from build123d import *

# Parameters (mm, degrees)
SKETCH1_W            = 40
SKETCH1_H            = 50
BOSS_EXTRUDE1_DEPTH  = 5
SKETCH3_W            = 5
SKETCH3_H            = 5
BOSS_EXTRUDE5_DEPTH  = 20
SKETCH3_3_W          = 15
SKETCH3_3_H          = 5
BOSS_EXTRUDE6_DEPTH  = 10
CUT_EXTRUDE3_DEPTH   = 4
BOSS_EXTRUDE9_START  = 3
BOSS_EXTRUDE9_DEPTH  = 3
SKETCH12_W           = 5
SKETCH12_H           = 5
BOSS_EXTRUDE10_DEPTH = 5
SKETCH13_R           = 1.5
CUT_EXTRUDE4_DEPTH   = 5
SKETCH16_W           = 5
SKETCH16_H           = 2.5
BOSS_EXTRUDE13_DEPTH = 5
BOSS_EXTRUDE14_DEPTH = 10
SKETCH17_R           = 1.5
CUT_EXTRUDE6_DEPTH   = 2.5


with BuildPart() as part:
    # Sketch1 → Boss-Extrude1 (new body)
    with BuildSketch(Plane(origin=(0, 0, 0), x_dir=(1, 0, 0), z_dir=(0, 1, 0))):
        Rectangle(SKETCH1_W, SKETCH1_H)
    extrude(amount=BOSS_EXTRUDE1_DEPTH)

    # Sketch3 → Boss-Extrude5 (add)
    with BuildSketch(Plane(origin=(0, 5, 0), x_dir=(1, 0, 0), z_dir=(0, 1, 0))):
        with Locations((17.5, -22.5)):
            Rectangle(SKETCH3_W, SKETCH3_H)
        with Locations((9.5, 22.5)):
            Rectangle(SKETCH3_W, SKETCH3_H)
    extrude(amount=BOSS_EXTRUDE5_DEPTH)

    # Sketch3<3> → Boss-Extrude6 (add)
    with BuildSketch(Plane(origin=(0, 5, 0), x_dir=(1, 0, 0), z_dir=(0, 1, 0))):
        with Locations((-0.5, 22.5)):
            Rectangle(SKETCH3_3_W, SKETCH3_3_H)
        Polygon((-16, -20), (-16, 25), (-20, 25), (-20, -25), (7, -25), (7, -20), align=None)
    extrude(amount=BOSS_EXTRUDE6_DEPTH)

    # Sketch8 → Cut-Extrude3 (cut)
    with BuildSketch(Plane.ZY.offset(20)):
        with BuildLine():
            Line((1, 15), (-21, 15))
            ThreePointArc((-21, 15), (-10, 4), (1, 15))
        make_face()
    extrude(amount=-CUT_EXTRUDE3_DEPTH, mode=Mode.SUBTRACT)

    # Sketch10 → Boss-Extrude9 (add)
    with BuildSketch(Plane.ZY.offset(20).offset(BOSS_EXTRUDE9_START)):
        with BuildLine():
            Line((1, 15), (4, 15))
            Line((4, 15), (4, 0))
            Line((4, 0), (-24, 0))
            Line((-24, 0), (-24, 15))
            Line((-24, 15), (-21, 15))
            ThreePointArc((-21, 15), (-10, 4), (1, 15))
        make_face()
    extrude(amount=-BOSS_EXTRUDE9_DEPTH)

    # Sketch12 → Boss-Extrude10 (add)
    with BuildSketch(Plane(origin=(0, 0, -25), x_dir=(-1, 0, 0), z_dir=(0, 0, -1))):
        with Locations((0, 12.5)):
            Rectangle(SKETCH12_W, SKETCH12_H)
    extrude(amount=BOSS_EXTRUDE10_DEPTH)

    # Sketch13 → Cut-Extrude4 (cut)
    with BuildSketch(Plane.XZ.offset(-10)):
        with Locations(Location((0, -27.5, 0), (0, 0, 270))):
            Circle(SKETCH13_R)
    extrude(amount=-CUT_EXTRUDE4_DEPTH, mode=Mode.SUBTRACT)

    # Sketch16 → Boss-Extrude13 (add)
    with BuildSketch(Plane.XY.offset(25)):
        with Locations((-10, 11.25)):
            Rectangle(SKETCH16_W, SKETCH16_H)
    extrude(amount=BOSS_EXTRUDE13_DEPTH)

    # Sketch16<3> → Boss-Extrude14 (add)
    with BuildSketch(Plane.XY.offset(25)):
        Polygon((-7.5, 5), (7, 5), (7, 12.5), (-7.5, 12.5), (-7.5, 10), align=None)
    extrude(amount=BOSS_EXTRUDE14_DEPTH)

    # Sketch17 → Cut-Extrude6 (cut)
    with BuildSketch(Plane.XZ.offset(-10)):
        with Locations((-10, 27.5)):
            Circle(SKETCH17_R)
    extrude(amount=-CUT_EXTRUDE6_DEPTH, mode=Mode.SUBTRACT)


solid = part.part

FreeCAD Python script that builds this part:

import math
import FreeCAD as App
import Part
import Sketcher

V = App.Vector
Q = App.Units.Quantity

doc = App.newDocument("Part")
params = doc.addObject("Spreadsheet::Sheet", "Params")
for row, (alias, value) in enumerate([
    ("sketch1_width", "40 mm"),
    ("sketch1_height", "50 mm"),
    ("pad1_length", "5 mm"),
    ("sketch2_width", "5 mm"),
    ("pad2_length", "20 mm"),
    ("sketch3_width", "15 mm"),
    ("sketch3_width2", "4 mm"),
    ("sketch3_width3", "27 mm"),
    ("sketch3_height", "5 mm"),
    ("sketch3_height2", "45 mm"),
    ("pad3_length", "10 mm"),
    ("sketch4_radius", "11 mm"),
    ("pocket1_length", "4 mm"),
    ("sketch5_radius", "11 mm"),
    ("sketch5_width", "15 mm"),
    ("sketch5_height", "3 mm"),
    ("pad4_length", "3 mm"),
    ("sketch6_width", "5 mm"),
    ("pad5_length", "5 mm"),
    ("sketch7_diameter", "3 mm"),
    ("pocket2_length", "5 mm"),
    ("sketch8_width", "5 mm"),
    ("sketch8_height", "2.5 mm"),
    ("pad6_length", "5 mm"),
    ("sketch9_width", "14.5 mm"),
    ("sketch9_height", "7.5 mm"),
    ("pad7_length", "10 mm"),
    ("sketch10_diameter", "3 mm"),
    ("pocket3_length", "2.5 mm"),
], start=1):
    params.set(f"A{row}", alias)
    params.set(f"B{row}", "=" + value)
    params.setAlias(f"B{row}", alias)

body = doc.addObject("PartDesign::Body", "Body")

# Sketch on XZ plane
sketch1 = body.newObject("Sketcher::SketchObject", "Sketch")
sketch1.AttachmentSupport = (doc.getObject("XZ_Plane"), [""])
sketch1.MapMode = "FlatFace"
sketch1.addGeometry([
    Part.LineSegment(V(-20, -25, 0), V(-20, 25, 0)),
    Part.LineSegment(V(-20, 25, 0), V(20, 25, 0)),
    Part.LineSegment(V(20, 25, 0), V(20, -25, 0)),
    Part.LineSegment(V(20, -25, 0), V(-20, -25, 0)),
], False)
sketch1.addConstraint([
    Sketcher.Constraint("Coincident", 0, 2, 1, 1),
    Sketcher.Constraint("Coincident", 1, 2, 2, 1),
    Sketcher.Constraint("Coincident", 2, 2, 3, 1),
    Sketcher.Constraint("Coincident", 3, 2, 0, 1),
    Sketcher.Constraint("Vertical", 0),
    Sketcher.Constraint("Horizontal", 1),
    Sketcher.Constraint("Vertical", 2),
    Sketcher.Constraint("Horizontal", 3),
    Sketcher.Constraint("Symmetric", 0, 2, 2, 2, -1, 1),
    Sketcher.Constraint("DistanceX", 1, 1, 1, 2, Q("40 mm")),
    Sketcher.Constraint("DistanceY", 0, 1, 0, 2, Q("50 mm")),
])
sketch1.setExpression("Constraints[9]", "Params.sketch1_width")
sketch1.setExpression("Constraints[10]", "Params.sketch1_height")
pad1 = body.newObject("PartDesign::Pad", "Pad")
pad1.Profile = sketch1
pad1.setExpression("Length", "Params.pad1_length")
pad1.Reversed = True

# Sketch on XZ plane
sketch2 = body.newObject("Sketcher::SketchObject", "Sketch001")
sketch2.AttachmentSupport = (doc.getObject("XZ_Plane"), [""])
sketch2.MapMode = "FlatFace"
sketch2.AttachmentOffset = App.Placement(V(0, 0, -5), App.Rotation())
sketch2.addGeometry([
    Part.LineSegment(V(15, 20, 0), V(15, 25, 0)),  # 0
    Part.LineSegment(V(15, 25, 0), V(20, 25, 0)),  # 1
    Part.LineSegment(V(20, 25, 0), V(20, 20, 0)),  # 2
    Part.LineSegment(V(20, 20, 0), V(15, 20, 0)),  # 3
    Part.LineSegment(V(7, -25, 0), V(7, -20, 0)),  # 4
    Part.LineSegment(V(7, -20, 0), V(12, -20, 0)),  # 5
    Part.LineSegment(V(12, -20, 0), V(12, -25, 0)),  # 6
    Part.LineSegment(V(12, -25, 0), V(7, -25, 0)),  # 7
], False)
sketch2.addConstraint([
    Sketcher.Constraint("Coincident", 0, 2, 1, 1),
    Sketcher.Constraint("Coincident", 1, 2, 2, 1),
    Sketcher.Constraint("Coincident", 2, 2, 3, 1),
    Sketcher.Constraint("Coincident", 3, 2, 0, 1),
    Sketcher.Constraint("Coincident", 4, 2, 5, 1),
    Sketcher.Constraint("Coincident", 5, 2, 6, 1),
    Sketcher.Constraint("Coincident", 6, 2, 7, 1),
    Sketcher.Constraint("Coincident", 7, 2, 4, 1),
    Sketcher.Constraint("Vertical", 0),
    Sketcher.Constraint("Horizontal", 1),
    Sketcher.Constraint("Vertical", 2),
    Sketcher.Constraint("Horizontal", 3),
    Sketcher.Constraint("Vertical", 4),
    Sketcher.Constraint("Horizontal", 5),
    Sketcher.Constraint("Vertical", 6),
    Sketcher.Constraint("Horizontal", 7),
    Sketcher.Constraint("Equal", 3, 5),
    Sketcher.Constraint("Equal", 7, 0),
    Sketcher.Constraint("Equal", 2, 4),
    Sketcher.Constraint("DistanceX", 1, 1, 1, 2, Q("5 mm")),
    Sketcher.Constraint("DistanceX", -1, 1, 0, 2, Q("15 mm")),
    Sketcher.Constraint("DistanceY", -1, 1, 0, 2, Q("25 mm")),
    Sketcher.Constraint("DistanceX", -1, 1, 4, 2, Q("7 mm")),
    Sketcher.Constraint("DistanceY", 4, 2, -1, 1, Q("20 mm")),
])
sketch2.setExpression("Constraints[19]", "Params.sketch2_width")
pad2 = body.newObject("PartDesign::Pad", "Pad001")
pad2.Profile = sketch2
pad2.setExpression("Length", "Params.pad2_length")
pad2.Reversed = True

# Sketch on XZ plane
sketch3 = body.newObject("Sketcher::SketchObject", "Sketch002")
sketch3.AttachmentSupport = (doc.getObject("XZ_Plane"), [""])
sketch3.MapMode = "FlatFace"
sketch3.AttachmentOffset = App.Placement(V(0, 0, -5), App.Rotation())
sketch3.addGeometry([
    Part.LineSegment(V(-8, -25, 0), V(-8, -20, 0)),  # 0
    Part.LineSegment(V(-8, -20, 0), V(7, -20, 0)),  # 1
    Part.LineSegment(V(7, -20, 0), V(7, -25, 0)),  # 2
    Part.LineSegment(V(7, -25, 0), V(-8, -25, 0)),  # 3
    Part.LineSegment(V(-16, 20, 0), V(-16, -25, 0)),  # 4
    Part.LineSegment(V(-16, -25, 0), V(-20, -25, 0)),  # 5
    Part.LineSegment(V(-20, -25, 0), V(-20, 25, 0)),  # 6
    Part.LineSegment(V(-20, 25, 0), V(7, 25, 0)),  # 7
    Part.LineSegment(V(7, 25, 0), V(7, 20, 0)),  # 8
    Part.LineSegment(V(7, 20, 0), V(-16, 20, 0)),  # 9
], False)
sketch3.addConstraint([
    Sketcher.Constraint("Coincident", 0, 2, 1, 1),
    Sketcher.Constraint("Coincident", 1, 2, 2, 1),
    Sketcher.Constraint("Coincident", 2, 2, 3, 1),
    Sketcher.Constraint("Coincident", 3, 2, 0, 1),
    Sketcher.Constraint("Coincident", 4, 2, 5, 1),
    Sketcher.Constraint("Coincident", 5, 2, 6, 1),
    Sketcher.Constraint("Coincident", 6, 2, 7, 1),
    Sketcher.Constraint("Coincident", 7, 2, 8, 1),
    Sketcher.Constraint("Coincident", 8, 2, 9, 1),
    Sketcher.Constraint("Coincident", 9, 2, 4, 1),
    Sketcher.Constraint("Vertical", 0),
    Sketcher.Constraint("Horizontal", 1),
    Sketcher.Constraint("Vertical", 2),
    Sketcher.Constraint("Horizontal", 3),
    Sketcher.Constraint("Vertical", 4),
    Sketcher.Constraint("Horizontal", 5),
    Sketcher.Constraint("Vertical", 6),
    Sketcher.Constraint("Horizontal", 7),
    Sketcher.Constraint("Vertical", 8),
    Sketcher.Constraint("Horizontal", 9),
    Sketcher.Constraint("Symmetric", 2, 2, 7, 2, -1),
    Sketcher.Constraint("Horizontal", 3, 2, 4, 2),
    Sketcher.Constraint("Equal", 2, 8),
    Sketcher.Constraint("DistanceX", 1, 1, 1, 2, Q("15 mm")),
    Sketcher.Constraint("DistanceX", 5, 2, 5, 1, Q("4 mm")),
    Sketcher.Constraint("DistanceX", 7, 1, 7, 2, Q("27 mm")),
    Sketcher.Constraint("DistanceY", 0, 1, 0, 2, Q("5 mm")),
    Sketcher.Constraint("DistanceY", 4, 2, 4, 1, Q("45 mm")),
    Sketcher.Constraint("DistanceX", 0, 2, -1, 1, Q("8 mm")),
])
sketch3.setExpression("Constraints[23]", "Params.sketch3_width")
sketch3.setExpression("Constraints[24]", "Params.sketch3_width2")
sketch3.setExpression("Constraints[25]", "Params.sketch3_width3")
sketch3.setExpression("Constraints[26]", "Params.sketch3_height")
sketch3.setExpression("Constraints[27]", "Params.sketch3_height2")
pad3 = body.newObject("PartDesign::Pad", "Pad002")
pad3.Profile = sketch3
pad3.setExpression("Length", "Params.pad3_length")
pad3.Reversed = True

# Sketch on YZ plane
sketch4 = body.newObject("Sketcher::SketchObject", "Sketch003")
sketch4.AttachmentSupport = (doc.getObject("YZ_Plane"), [""])
sketch4.MapMode = "FlatFace"
sketch4.AttachmentOffset = App.Placement(V(0, 0, -20), App.Rotation())
sketch4.addGeometry([
    Part.LineSegment(V(15, 1, 0), V(15, -21, 0)),
    Part.ArcOfCircle(Part.Circle(V(15, -10, 0), V(0, 0, 1), 11), math.radians(90), math.radians(270)),
], False)
sketch4.addConstraint([
    Sketcher.Constraint("Coincident", 0, 1, 1, 1),
    Sketcher.Constraint("Coincident", 1, 2, 0, 2),
    Sketcher.Constraint("Vertical", 0),
    Sketcher.Constraint("Vertical", 1, 3, 0, 1),
    Sketcher.Constraint("Radius", 1, Q("11 mm")),
    Sketcher.Constraint("DistanceX", -1, 1, 1, 3, Q("15 mm")),
    Sketcher.Constraint("DistanceY", 1, 3, -1, 1, Q("10 mm")),
])
sketch4.setExpression("Constraints[4]", "Params.sketch4_radius")
pocket1 = body.newObject("PartDesign::Pocket", "Pocket")
pocket1.Profile = sketch4
pocket1.setExpression("Length", "Params.pocket1_length")
pocket1.Reversed = True

# Sketch on YZ plane
sketch5 = body.newObject("Sketcher::SketchObject", "Sketch004")
sketch5.AttachmentSupport = (doc.getObject("YZ_Plane"), [""])
sketch5.MapMode = "FlatFace"
sketch5.AttachmentOffset = App.Placement(V(0, 0, -23), App.Rotation())
sketch5.addGeometry([
    Part.LineSegment(V(15, 4, 0), V(15, 1, 0)),  # 0
    Part.ArcOfCircle(Part.Circle(V(15, -10, 0), V(0, 0, 1), 11), math.radians(90), math.radians(270)),  # 1
    Part.LineSegment(V(15, -21, 0), V(15, -24, 0)),  # 2
    Part.LineSegment(V(15, -24, 0), V(0, -24, 0)),  # 3
    Part.LineSegment(V(0, -24, 0), V(0, 4, 0)),  # 4
    Part.LineSegment(V(0, 4, 0), V(15, 4, 0)),  # 5
], False)
sketch5.addConstraint([
    Sketcher.Constraint("Coincident", 0, 2, 1, 1),
    Sketcher.Constraint("Coincident", 1, 2, 2, 1),
    Sketcher.Constraint("Coincident", 2, 2, 3, 1),
    Sketcher.Constraint("Coincident", 3, 2, 4, 1),
    Sketcher.Constraint("Coincident", 4, 2, 5, 1),
    Sketcher.Constraint("Coincident", 5, 2, 0, 1),
    Sketcher.Constraint("Vertical", 0),
    Sketcher.Constraint("Vertical", 2),
    Sketcher.Constraint("Horizontal", 3),
    Sketcher.Constraint("Vertical", 4),
    Sketcher.Constraint("Horizontal", 5),
    Sketcher.Constraint("PointOnObject", 3, 2, -2),
    Sketcher.Constraint("Vertical", 1, 3, 0, 2),
    Sketcher.Constraint("Vertical", 0, 2, 1, 2),
    Sketcher.Constraint("Equal", 0, 2),
    Sketcher.Constraint("Radius", 1, Q("11 mm")),
    Sketcher.Constraint("DistanceX", 3, 2, 3, 1, Q("15 mm")),
    Sketcher.Constraint("DistanceY", 0, 2, 0, 1, Q("3 mm")),
    Sketcher.Constraint("DistanceY", 1, 3, -1, 1, Q("10 mm")),
])
sketch5.setExpression("Constraints[15]", "Params.sketch5_radius")
sketch5.setExpression("Constraints[16]", "Params.sketch5_width")
sketch5.setExpression("Constraints[17]", "Params.sketch5_height")
pad4 = body.newObject("PartDesign::Pad", "Pad003")
pad4.Profile = sketch5
pad4.setExpression("Length", "Params.pad4_length")

# Sketch on XY plane
sketch6 = body.newObject("Sketcher::SketchObject", "Sketch005")
sketch6.AttachmentSupport = (doc.getObject("XY_Plane"), [""])
sketch6.MapMode = "FlatFace"
sketch6.AttachmentOffset = App.Placement(V(0, 0, -25), App.Rotation())
sketch6.addGeometry([
    Part.LineSegment(V(2, 15, 0), V(2, 10, 0)),
    Part.LineSegment(V(2, 10, 0), V(-2, 10, 0)),
    Part.LineSegment(V(-2, 10, 0), V(-2, 15, 0)),
    Part.LineSegment(V(-2, 15, 0), V(2, 15, 0)),
], False)
sketch6.addConstraint([
    Sketcher.Constraint("Coincident", 0, 2, 1, 1),
    Sketcher.Constraint("Coincident", 1, 2, 2, 1),
    Sketcher.Constraint("Coincident", 2, 2, 3, 1),
    Sketcher.Constraint("Coincident", 3, 2, 0, 1),
    Sketcher.Constraint("Vertical", 0),
    Sketcher.Constraint("Horizontal", 1),
    Sketcher.Constraint("Vertical", 2),
    Sketcher.Constraint("Horizontal", 3),
    Sketcher.Constraint("Equal", 3, 0),
    Sketcher.Constraint("DistanceX", 1, 2, 1, 1, Q("5 mm")),
    Sketcher.Constraint("DistanceY", -1, 1, 0, 2, Q("10 mm")),
    Sketcher.Constraint("DistanceX", -1, 1, 0, 2, Q("2.5 mm")),
])
sketch6.setExpression("Constraints[9]", "Params.sketch6_width")
pad5 = body.newObject("PartDesign::Pad", "Pad004")
pad5.Profile = sketch6
pad5.setExpression("Length", "Params.pad5_length")
pad5.Reversed = True

# Sketch on XZ plane
sketch7 = body.newObject("Sketcher::SketchObject", "Sketch006")
sketch7.AttachmentSupport = (doc.getObject("XZ_Plane"), [""])
sketch7.MapMode = "FlatFace"
sketch7.AttachmentOffset = App.Placement(V(0, 0, -10), App.Rotation())
sketch7.addGeometry(Part.Circle(V(0, -27.5, 0), V(0, 0, 1), 1.5), False)
sketch7.addConstraint([
    Sketcher.Constraint("PointOnObject", 0, 3, -2),
    Sketcher.Constraint("Diameter", 0, Q("3 mm")),
    Sketcher.Constraint("DistanceY", 0, 3, -1, 1, Q("27.5 mm")),
])
sketch7.setExpression("Constraints[1]", "Params.sketch7_diameter")
pocket2 = body.newObject("PartDesign::Pocket", "Pocket001")
pocket2.Profile = sketch7
pocket2.setExpression("Length", "Params.pocket2_length")

# Sketch on XY plane
sketch8 = body.newObject("Sketcher::SketchObject", "Sketch007")
sketch8.AttachmentSupport = (doc.getObject("XY_Plane"), [""])
sketch8.MapMode = "FlatFace"
sketch8.AttachmentOffset = App.Placement(V(0, 0, 25), App.Rotation())
sketch8.addGeometry([
    Part.LineSegment(V(-12.5, 12.5, 0), V(-12.5, 10, 0)),
    Part.LineSegment(V(-12.5, 10, 0), V(-7.5, 10, 0)),
    Part.LineSegment(V(-7.5, 10, 0), V(-7.5, 12.5, 0)),
    Part.LineSegment(V(-7.5, 12.5, 0), V(-12.5, 12.5, 0)),
], False)
sketch8.addConstraint([
    Sketcher.Constraint("Coincident", 0, 2, 1, 1),
    Sketcher.Constraint("Coincident", 1, 2, 2, 1),
    Sketcher.Constraint("Coincident", 2, 2, 3, 1),
    Sketcher.Constraint("Coincident", 3, 2, 0, 1),
    Sketcher.Constraint("Vertical", 0),
    Sketcher.Constraint("Horizontal", 1),
    Sketcher.Constraint("Vertical", 2),
    Sketcher.Constraint("Horizontal", 3),
    Sketcher.Constraint("DistanceX", 1, 1, 1, 2, Q("5 mm")),
    Sketcher.Constraint("DistanceY", 0, 2, 0, 1, Q("2.5 mm")),
    Sketcher.Constraint("DistanceY", -1, 1, 0, 2, Q("10 mm")),
    Sketcher.Constraint("DistanceX", 0, 2, -1, 1, Q("12.5 mm")),
])
sketch8.setExpression("Constraints[8]", "Params.sketch8_width")
sketch8.setExpression("Constraints[9]", "Params.sketch8_height")
pad6 = body.newObject("PartDesign::Pad", "Pad005")
pad6.Profile = sketch8
pad6.setExpression("Length", "Params.pad6_length")

# Sketch on XY plane
sketch9 = body.newObject("Sketcher::SketchObject", "Sketch008")
sketch9.AttachmentSupport = (doc.getObject("XY_Plane"), [""])
sketch9.MapMode = "FlatFace"
sketch9.AttachmentOffset = App.Placement(V(0, 0, 25), App.Rotation())
sketch9.addGeometry([
    Part.LineSegment(V(-8, 5, 0), V(7, 5, 0)),
    Part.LineSegment(V(7, 5, 0), V(7, 12, 0)),
    Part.LineSegment(V(7, 12, 0), V(-8, 12, 0)),
    Part.LineSegment(V(-8, 12, 0), V(-8, 5, 0)),
], False)
sketch9.addConstraint([
    Sketcher.Constraint("Coincident", 0, 2, 1, 1),
    Sketcher.Constraint("Coincident", 1, 2, 2, 1),
    Sketcher.Constraint("Coincident", 2, 2, 3, 1),
    Sketcher.Constraint("Coincident", 3, 2, 0, 1),
    Sketcher.Constraint("Horizontal", 0),
    Sketcher.Constraint("Vertical", 1),
    Sketcher.Constraint("Horizontal", 2),
    Sketcher.Constraint("Vertical", 3),
    Sketcher.Constraint("DistanceX", 0, 1, 0, 2, Q("14.5 mm")),
    Sketcher.Constraint("DistanceY", 1, 1, 1, 2, Q("7.5 mm")),
    Sketcher.Constraint("DistanceX", -1, 1, 0, 2, Q("7 mm")),
    Sketcher.Constraint("DistanceY", -1, 1, 0, 2, Q("5 mm")),
])
sketch9.setExpression("Constraints[8]", "Params.sketch9_width")
sketch9.setExpression("Constraints[9]", "Params.sketch9_height")
pad7 = body.newObject("PartDesign::Pad", "Pad006")
pad7.Profile = sketch9
pad7.setExpression("Length", "Params.pad7_length")

# Sketch on XZ plane
sketch10 = body.newObject("Sketcher::SketchObject", "Sketch009")
sketch10.AttachmentSupport = (doc.getObject("XZ_Plane"), [""])
sketch10.MapMode = "FlatFace"
sketch10.AttachmentOffset = App.Placement(V(0, 0, -10), App.Rotation())
sketch10.addGeometry(Part.Circle(V(-10, 27.5, 0), V(0, 0, 1), 1.5), False)
sketch10.addConstraint([
    Sketcher.Constraint("Diameter", 0, Q("3 mm")),
    Sketcher.Constraint("DistanceX", 0, 3, -1, 1, Q("10 mm")),
    Sketcher.Constraint("DistanceY", -1, 1, 0, 3, Q("27.5 mm")),
])
sketch10.setExpression("Constraints[0]", "Params.sketch10_diameter")
pocket3 = body.newObject("PartDesign::Pocket", "Pocket002")
pocket3.Profile = sketch10
pocket3.setExpression("Length", "Params.pocket3_length")

doc.recompute()
